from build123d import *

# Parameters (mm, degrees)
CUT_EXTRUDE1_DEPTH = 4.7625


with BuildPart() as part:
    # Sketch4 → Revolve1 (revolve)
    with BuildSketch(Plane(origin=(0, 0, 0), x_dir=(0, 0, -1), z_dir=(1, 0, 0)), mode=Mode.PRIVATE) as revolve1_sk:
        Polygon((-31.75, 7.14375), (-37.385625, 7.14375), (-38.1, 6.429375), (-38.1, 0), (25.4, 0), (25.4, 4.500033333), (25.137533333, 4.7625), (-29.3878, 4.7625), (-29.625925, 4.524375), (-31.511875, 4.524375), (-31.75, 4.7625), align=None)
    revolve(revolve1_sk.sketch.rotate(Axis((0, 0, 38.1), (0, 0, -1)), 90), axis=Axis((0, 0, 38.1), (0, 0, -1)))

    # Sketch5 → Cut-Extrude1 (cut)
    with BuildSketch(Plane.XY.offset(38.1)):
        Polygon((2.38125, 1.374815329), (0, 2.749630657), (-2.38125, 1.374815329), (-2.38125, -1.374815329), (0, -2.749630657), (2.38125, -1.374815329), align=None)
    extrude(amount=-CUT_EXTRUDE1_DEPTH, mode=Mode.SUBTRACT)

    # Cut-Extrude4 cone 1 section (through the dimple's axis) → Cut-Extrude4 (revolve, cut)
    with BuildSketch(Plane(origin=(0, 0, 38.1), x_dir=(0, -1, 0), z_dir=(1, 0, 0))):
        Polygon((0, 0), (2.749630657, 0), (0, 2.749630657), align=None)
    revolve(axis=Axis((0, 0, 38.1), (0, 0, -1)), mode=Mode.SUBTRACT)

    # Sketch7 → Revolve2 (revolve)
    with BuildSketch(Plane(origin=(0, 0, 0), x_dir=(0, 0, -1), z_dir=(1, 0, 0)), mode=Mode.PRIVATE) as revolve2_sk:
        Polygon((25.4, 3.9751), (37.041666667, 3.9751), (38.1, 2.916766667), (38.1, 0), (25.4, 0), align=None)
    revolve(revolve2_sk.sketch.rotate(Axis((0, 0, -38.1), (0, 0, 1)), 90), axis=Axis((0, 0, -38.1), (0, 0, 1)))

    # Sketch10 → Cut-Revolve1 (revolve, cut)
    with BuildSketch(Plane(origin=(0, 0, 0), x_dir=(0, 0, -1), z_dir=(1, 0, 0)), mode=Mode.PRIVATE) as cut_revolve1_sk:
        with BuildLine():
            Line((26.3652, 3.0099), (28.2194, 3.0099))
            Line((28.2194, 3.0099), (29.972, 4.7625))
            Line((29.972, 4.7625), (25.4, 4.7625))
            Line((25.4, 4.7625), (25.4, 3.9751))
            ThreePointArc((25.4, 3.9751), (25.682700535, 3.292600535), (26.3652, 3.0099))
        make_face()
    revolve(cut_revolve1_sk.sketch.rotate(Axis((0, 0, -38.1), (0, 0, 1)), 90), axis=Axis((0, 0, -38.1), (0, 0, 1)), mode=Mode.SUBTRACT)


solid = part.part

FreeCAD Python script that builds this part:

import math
import FreeCAD as App
import Part
import Sketcher

V = App.Vector
Q = App.Units.Quantity

doc = App.newDocument("Part")
body = doc.addObject("PartDesign::Body", "Body")

# Sketch on YZ plane
sketch1 = body.newObject("Sketcher::SketchObject", "Sketch")
sketch1.AttachmentSupport = (doc.getObject("YZ_Plane"), [""])
sketch1.MapMode = "FlatFace"
sketch1.addGeometry(Part.LineSegment(V(7.14, 31.75, 0), V(7.14, 37.39, 0)), False)
sketch1.addGeometry(Part.LineSegment(V(7.14, 37.39, 0), V(6.43, 38.1, 0)), False)
sketch1.addGeometry(Part.LineSegment(V(6.43, 38.1, 0), V(0, 38.1, 0)), False)
sketch1.addGeometry(Part.LineSegment(V(0, 38.1, 0), V(0, -25.4, 0)), False)
sketch1.addGeometry(Part.LineSegment(V(0, -25.4, 0), V(4.5, -25.4, 0)), False)
sketch1.addGeometry(Part.LineSegment(V(4.5, -25.4, 0), V(4.76, -25.14, 0)), False)
sketch1.addGeometry(Part.LineSegment(V(4.76, -25.14, 0), V(4.76, 29.39, 0)), False)
sketch1.addGeometry(Part.LineSegment(V(4.76, 29.39, 0), V(4.52, 29.63, 0)), False)
sketch1.addGeometry(Part.LineSegment(V(4.52, 29.63, 0), V(4.52, 31.51, 0)), False)
sketch1.addGeometry(Part.LineSegment(V(4.52, 31.51, 0), V(4.76, 31.75, 0)), False)
sketch1.addGeometry(Part.LineSegment(V(4.76, 31.75, 0), V(7.14, 31.75, 0)), False)
sketch1.addConstraint(Sketcher.Constraint("Coincident", 0, 2, 1, 1))
sketch1.addConstraint(Sketcher.Constraint("Coincident", 1, 2, 2, 1))
sketch1.addConstraint(Sketcher.Constraint("Coincident", 2, 2, 3, 1))
sketch1.addConstraint(Sketcher.Constraint("Coincident", 3, 2, 4, 1))
sketch1.addConstraint(Sketcher.Constraint("Coincident", 4, 2, 5, 1))
sketch1.addConstraint(Sketcher.Constraint("Coincident", 5, 2, 6, 1))
sketch1.addConstraint(Sketcher.Constraint("Coincident", 6, 2, 7, 1))
sketch1.addConstraint(Sketcher.Constraint("Coincident", 7, 2, 8, 1))
sketch1.addConstraint(Sketcher.Constraint("Coincident", 8, 2, 9, 1))
sketch1.addConstraint(Sketcher.Constraint("Coincident", 9, 2, 10, 1))
sketch1.addConstraint(Sketcher.Constraint("Coincident", 10, 2, 0, 1))
sketch1.addConstraint(Sketcher.Constraint("Vertical", 0))
sketch1.addConstraint(Sketcher.Constraint("Horizontal", 2))
sketch1.addConstraint(Sketcher.Constraint("Vertical", 3))
sketch1.addConstraint(Sketcher.Constraint("Horizontal", 4))
sketch1.addConstraint(Sketcher.Constraint("Vertical", 6))
sketch1.addConstraint(Sketcher.Constraint("Vertical", 8))
sketch1.addConstraint(Sketcher.Constraint("Horizontal", 10))
sketch1.addConstraint(Sketcher.Constraint("PointOnObject", 2, 2, -2))
sketch1.addConstraint(Sketcher.Constraint("Perpendicular", 1, 5))
sketch1.addConstraint(Sketcher.Constraint("Perpendicular", 5, 7))
sketch1.addConstraint(Sketcher.Constraint("Perpendicular", 7, 9))
sketch1.addConstraint(Sketcher.Constraint("Vertical", 6, 2, 9, 2))
sketch1.addConstraint(Sketcher.Constraint("Equal", 7, 9))
sketch1.addConstraint(Sketcher.Constraint("DistanceY", 3, 2, 3, 1, Q("2.5 in")))
sketch1.addConstraint(Sketcher.Constraint("DistanceY", 3, 2, -1, 1, Q("1 in")))
sketch1.addConstraint(Sketcher.Constraint("DistanceX", 10, 1, 10, 2, Q("0.09375 in")))
sketch1.addConstraint(Sketcher.Constraint("DistanceY", -1, 1, 9, 2, Q("1.25 in")))
sketch1.addConstraint(Sketcher.Constraint("DistanceX", -1, 1, 0, 2, Q("0.28125 in")))
sketch1.addConstraint(Sketcher.Constraint("DistanceY", -1, 1, 6, 2, Q("1.157 in")))
sketch1.addConstraint(Sketcher.Constraint("DistanceX", 7, 2, 1, 2, Q("0.075 in")))
sketch1.addConstraint(Sketcher.Constraint("DistanceY", 7, 2, 0, 2, Q("0.3055 in")))
sketch1.addConstraint(Sketcher.Constraint("DistanceX", 4, 1, 4, 2, Q("4.500033 mm")))
revolution = body.newObject("PartDesign::Revolution", "Revolution")
revolution.Profile = sketch1
revolution.ReferenceAxis = (sketch1, ["V_Axis"])
revolution.Angle = 360

# Sketch on XY plane
sketch2 = body.newObject("Sketcher::SketchObject", "Sketch001")
sketch2.AttachmentSupport = (doc.getObject("XY_Plane"), [""])
sketch2.MapMode = "FlatFace"
sketch2.AttachmentOffset = App.Placement(V(0, 0, 1.5 * 25.4), App.Rotation())
sketch2.addGeometry(Part.LineSegment(V(2.4, 1.4, 0), V(0, 2.7, 0)), False)
sketch2.addGeometry(Part.LineSegment(V(0, 2.7, 0), V(-2.4, 1.4, 0)), False)
sketch2.addGeometry(Part.LineSegment(V(-2.4, 1.4, 0), V(-2.4, -1.4, 0)), False)
sketch2.addGeometry(Part.LineSegment(V(-2.4, -1.4, 0), V(0, -2.7, 0)), False)
sketch2.addGeometry(Part.LineSegment(V(0, -2.7, 0), V(2.4, -1.4, 0)), False)
sketch2.addGeometry(Part.LineSegment(V(2.4, -1.4, 0), V(2.4, 1.4, 0)), False)
sketch2.addConstraint(Sketcher.Constraint("Coincident", 0, 2, 1, 1))
sketch2.addConstraint(Sketcher.Constraint("Coincident", 1, 2, 2, 1))
sketch2.addConstraint(Sketcher.Constraint("Coincident", 2, 2, 3, 1))
sketch2.addConstraint(Sketcher.Constraint("Coincident", 3, 2, 4, 1))
sketch2.addConstraint(Sketcher.Constraint("Coincident", 4, 2, 5, 1))
sketch2.addConstraint(Sketcher.Constraint("Coincident", 5, 2, 0, 1))
sketch2.addConstraint(Sketcher.Constraint("Vertical", 2))
sketch2.addConstraint(Sketcher.Constraint("Vertical", 5))
sketch2.addConstraint(Sketcher.Constraint("Symmetric", 0, 2, 3, 2, -1, 1))
sketch2.addConstraint(Sketcher.Constraint("Symmetric", 1, 2, 4, 2, -1, 1))
sketch2.addConstraint(Sketcher.Constraint("PointOnObject", 0, 2, -2))
sketch2.addConstraint(Sketcher.Constraint("Parallel", 0, 3))
sketch2.addConstraint(Sketcher.Constraint("Horizontal", 2, 2, 4, 2))
sketch2.addConstraint(Sketcher.Constraint("Angle", 0, Q("150 deg")))
sketch2.addConstraint(Sketcher.Constraint("DistanceX", 1, 2, -1, 1, Q("0.09375 in")))
sketch2.addConstraint(Sketcher.Constraint("DistanceY", 2, 2, 2, 1, Q("2.749631 mm")))
pocket1 = body.newObject("PartDesign::Pocket", "Pocket")
pocket1.Profile = sketch2
pocket1.Length = Q("0.1875 in")

# Sketch on YZ plane
sketch3 = body.newObject("Sketcher::SketchObject", "Sketch002")
sketch3.AttachmentSupport = (doc.getObject("YZ_Plane"), [""])
sketch3.MapMode = "FlatFace"
sketch3.addGeometry(Part.LineSegment(V(0, 38.1, 0), V(-2.7, 38.1, 0)), False)
sketch3.addGeometry(Part.LineSegment(V(-2.7, 38.1, 0), V(0, 35.4, 0)), False)
sketch3.addGeometry(Part.LineSegment(V(0, 35.4, 0), V(0, 38.1, 0)), False)
sketch3.addConstraint(Sketcher.Constraint("Coincident", 0, 2, 1, 1))
sketch3.addConstraint(Sketcher.Constraint("Coincident", 1, 2, 2, 1))
sketch3.addConstraint(Sketcher.Constraint("Coincident", 2, 2, 0, 1))
sketch3.addConstraint(Sketcher.Constraint("Horizontal", 0))
sketch3.addConstraint(Sketcher.Constraint("Vertical", 2))
sketch3.addConstraint(Sketcher.Constraint("PointOnObject", 1, 2, -2))
sketch3.addConstraint(Sketcher.Constraint("Equal", 0, 2))
sketch3.addConstraint(Sketcher.Constraint("DistanceY", -1, 1, 0, 2, Q("1.5 in")))
sketch3.addConstraint(Sketcher.Constraint("DistanceX", 0, 2, 0, 1, Q("2.749631 mm")))
groove = body.newObject("PartDesign::Groove", "Groove")
groove.Profile = sketch3
groove.ReferenceAxis = (sketch3, ["V_Axis"])
groove.Angle = 360

# Sketch on YZ plane
sketch4 = body.newObject("Sketcher::SketchObject", "Sketch003")
sketch4.AttachmentSupport = (doc.getObject("YZ_Plane"), [""])
sketch4.MapMode = "FlatFace"
sketch4.addGeometry(Part.LineSegment(V(4, -37, 0), V(4, -25.4, 0)), False)
sketch4.addGeometry(Part.LineSegment(V(4, -25.4, 0), V(0, -25.4, 0)), False)
sketch4.addGeometry(Part.LineSegment(V(0, -25.4, 0), V(0, -38.1, 0)), False)
sketch4.addGeometry(Part.LineSegment(V(0, -38.1, 0), V(2.9, -38.1, 0)), False)
sketch4.addGeometry(Part.LineSegment(V(2.9, -38.1, 0), V(4, -37, 0)), False)
sketch4.addConstraint(Sketcher.Constraint("Coincident", 0, 2, 1, 1))
sketch4.addConstraint(Sketcher.Constraint("Coincident", 1, 2, 2, 1))
sketch4.addConstraint(Sketcher.Constraint("Coincident", 2, 2, 3, 1))
sketch4.addConstraint(Sketcher.Constraint("Coincident", 3, 2, 4, 1))
sketch4.addConstraint(Sketcher.Constraint("Coincident", 4, 2, 0, 1))
sketch4.addConstraint(Sketcher.Constraint("Vertical", 0))
sketch4.addConstraint(Sketcher.Constraint("Horizontal", 1))
sketch4.addConstraint(Sketcher.Constraint("Vertical", 2))
sketch4.addConstraint(Sketcher.Constraint("Horizontal", 3))
sketch4.addConstraint(Sketcher.Constraint("PointOnObject", 1, 2, -2))
sketch4.addConstraint(Sketcher.Constraint("DistanceY", 2, 2, 2, 1, Q("0.5 in")))
sketch4.addConstraint(Sketcher.Constraint("DistanceY", 0, 2, -1, 1, Q("1 in")))
sketch4.addConstraint(Sketcher.Constraint("Angle", 4, Q("45 deg")))
sketch4.addConstraint(Sketcher.Constraint("DistanceX", 1, 2, 1, 1, Q("0.1565 in")))
sketch4.addConstraint(Sketcher.Constraint("Distance", 4, Q("1.496709 mm")))
revolution2 = body.newObject("PartDesign::Revolution", "Revolution001")
revolution2.Profile = sketch4
revolution2.ReferenceAxis = (sketch4, ["V_Axis"])
revolution2.Angle = 360

# Sketch on YZ plane
sketch5 = body.newObject("Sketcher::SketchObject", "Sketch004")
sketch5.AttachmentSupport = (doc.getObject("YZ_Plane"), [""])
sketch5.MapMode = "FlatFace"
sketch5.addGeometry(Part.LineSegment(V(3, -26.4, 0), V(3, -28.2, 0)), False)
sketch5.addGeometry(Part.LineSegment(V(3, -28.2, 0), V(4.8, -30, 0)), False)
sketch5.addGeometry(Part.LineSegment(V(4.8, -30, 0), V(4.8, -25.4, 0)), False)
sketch5.addGeometry(Part.LineSegment(V(4.8, -25.4, 0), V(4, -25.4, 0)), False)
sketch5.addGeometry(Part.ArcOfCircle(Part.Circle(V(4, -26.4, 0), V(0, 0, 1), 1), math.radians(90), math.radians(180)), False)
sketch5.addConstraint(Sketcher.Constraint("Coincident", 0, 2, 1, 1))
sketch5.addConstraint(Sketcher.Constraint("Coincident", 1, 2, 2, 1))
sketch5.addConstraint(Sketcher.Constraint("Coincident", 2, 2, 3, 1))
sketch5.addConstraint(Sketcher.Constraint("Tangent", 3, 2, 4, 1))
sketch5.addConstraint(Sketcher.Constraint("Tangent", 4, 2, 0, 1))
sketch5.addConstraint(Sketcher.Constraint("Vertical", 0))
sketch5.addConstraint(Sketcher.Constraint("Vertical", 2))
sketch5.addConstraint(Sketcher.Constraint("Horizontal", 3))
sketch5.addConstraint(Sketcher.Constraint("DistanceY", 2, 2, -1, 1, Q("1 in")))
sketch5.addConstraint(Sketcher.Constraint("Angle", 1, Q("-45 deg")))
sketch5.addConstraint(Sketcher.Constraint("Radius", 4, Q("0.038 in")))
sketch5.addConstraint(Sketcher.Constraint("DistanceY", 2, 1, 2, 2, Q("0.18 in")))
sketch5.addConstraint(Sketcher.Constraint("DistanceX", 3, 2, 3, 1, Q("0.031 in")))
sketch5.addConstraint(Sketcher.Constraint("DistanceX", -1, 1, 1, 2, Q("0.1875 in")))
groove2 = body.newObject("PartDesign::Groove", "Groove001")
groove2.Profile = sketch5
groove2.ReferenceAxis = (sketch5, ["V_Axis"])
groove2.Angle = 360

doc.recompute()
